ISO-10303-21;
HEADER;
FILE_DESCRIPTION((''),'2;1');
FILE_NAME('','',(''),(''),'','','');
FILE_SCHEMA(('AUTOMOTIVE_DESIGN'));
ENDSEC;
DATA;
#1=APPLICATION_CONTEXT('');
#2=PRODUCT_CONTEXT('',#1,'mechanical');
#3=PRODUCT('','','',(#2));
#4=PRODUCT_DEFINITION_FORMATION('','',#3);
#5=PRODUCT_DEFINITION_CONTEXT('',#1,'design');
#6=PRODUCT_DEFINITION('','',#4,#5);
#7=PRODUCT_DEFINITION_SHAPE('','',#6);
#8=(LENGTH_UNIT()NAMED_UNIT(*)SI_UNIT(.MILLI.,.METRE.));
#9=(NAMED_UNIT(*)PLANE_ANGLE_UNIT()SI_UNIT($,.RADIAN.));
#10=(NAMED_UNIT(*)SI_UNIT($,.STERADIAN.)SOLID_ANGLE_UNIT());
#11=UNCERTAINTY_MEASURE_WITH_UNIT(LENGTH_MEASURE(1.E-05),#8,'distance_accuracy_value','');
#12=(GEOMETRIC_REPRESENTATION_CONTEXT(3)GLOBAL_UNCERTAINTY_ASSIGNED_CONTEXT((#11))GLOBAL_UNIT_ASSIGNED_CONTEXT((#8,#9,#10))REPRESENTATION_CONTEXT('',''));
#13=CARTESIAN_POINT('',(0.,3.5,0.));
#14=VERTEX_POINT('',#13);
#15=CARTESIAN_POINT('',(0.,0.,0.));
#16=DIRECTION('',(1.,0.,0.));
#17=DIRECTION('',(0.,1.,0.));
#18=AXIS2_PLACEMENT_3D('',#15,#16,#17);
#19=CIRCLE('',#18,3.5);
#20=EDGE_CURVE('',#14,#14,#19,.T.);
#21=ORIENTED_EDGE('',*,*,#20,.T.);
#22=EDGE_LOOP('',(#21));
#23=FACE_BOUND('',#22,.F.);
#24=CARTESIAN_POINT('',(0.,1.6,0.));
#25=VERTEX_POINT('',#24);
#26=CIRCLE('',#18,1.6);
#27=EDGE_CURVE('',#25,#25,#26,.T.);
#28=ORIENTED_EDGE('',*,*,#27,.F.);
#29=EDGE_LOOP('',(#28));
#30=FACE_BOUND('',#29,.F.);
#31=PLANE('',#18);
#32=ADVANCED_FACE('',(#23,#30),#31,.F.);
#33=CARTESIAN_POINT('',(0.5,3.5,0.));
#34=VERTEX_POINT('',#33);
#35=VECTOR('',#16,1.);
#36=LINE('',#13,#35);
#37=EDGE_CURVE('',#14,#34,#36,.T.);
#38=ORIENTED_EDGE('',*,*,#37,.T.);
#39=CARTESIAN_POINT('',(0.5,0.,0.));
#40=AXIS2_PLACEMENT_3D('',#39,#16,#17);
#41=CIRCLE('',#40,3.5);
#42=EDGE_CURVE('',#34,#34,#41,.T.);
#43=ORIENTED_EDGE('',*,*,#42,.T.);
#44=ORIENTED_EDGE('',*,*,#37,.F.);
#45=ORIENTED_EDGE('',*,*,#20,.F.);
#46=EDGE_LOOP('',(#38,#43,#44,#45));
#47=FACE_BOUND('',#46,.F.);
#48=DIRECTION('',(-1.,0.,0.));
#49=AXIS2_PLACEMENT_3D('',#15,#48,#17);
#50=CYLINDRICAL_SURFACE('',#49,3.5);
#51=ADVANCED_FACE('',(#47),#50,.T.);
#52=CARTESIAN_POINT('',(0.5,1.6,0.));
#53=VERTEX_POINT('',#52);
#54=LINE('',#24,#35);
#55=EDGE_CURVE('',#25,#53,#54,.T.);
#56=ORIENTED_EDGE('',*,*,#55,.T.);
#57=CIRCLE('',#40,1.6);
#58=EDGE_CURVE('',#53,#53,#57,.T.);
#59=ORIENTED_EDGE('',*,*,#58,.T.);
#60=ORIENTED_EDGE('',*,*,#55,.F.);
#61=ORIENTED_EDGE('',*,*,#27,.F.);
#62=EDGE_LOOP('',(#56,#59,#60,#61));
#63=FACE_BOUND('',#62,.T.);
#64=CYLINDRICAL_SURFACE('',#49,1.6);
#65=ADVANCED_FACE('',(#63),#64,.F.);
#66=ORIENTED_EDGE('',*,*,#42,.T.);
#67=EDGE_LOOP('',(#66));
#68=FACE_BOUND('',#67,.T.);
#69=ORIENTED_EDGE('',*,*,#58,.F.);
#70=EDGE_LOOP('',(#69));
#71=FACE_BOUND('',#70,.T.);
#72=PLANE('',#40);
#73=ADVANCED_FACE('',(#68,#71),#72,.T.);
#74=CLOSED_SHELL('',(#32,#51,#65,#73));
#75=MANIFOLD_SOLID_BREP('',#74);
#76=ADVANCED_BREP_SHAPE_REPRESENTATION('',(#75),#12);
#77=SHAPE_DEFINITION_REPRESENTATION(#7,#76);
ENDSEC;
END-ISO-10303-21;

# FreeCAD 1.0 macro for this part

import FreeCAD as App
import Part
import Sketcher

V = App.Vector

doc = App.newDocument("Part")
body = doc.addObject("PartDesign::Body", "Body")

# Sketch on YZ plane
sketch1 = body.newObject("Sketcher::SketchObject", "Sketch")
sketch1.AttachmentSupport = (doc.getObject("YZ_Plane"), [""])
sketch1.MapMode = "FlatFace"
sketch1.addGeometry(Part.Circle(V(0, 0, 0), V(0, 0, 1), 3.5), False)
sketch1.addGeometry(Part.Circle(V(0, 0, 0), V(0, 0, 1), 1.6), False)
sketch1.addConstraint(Sketcher.Constraint("Coincident", 0, 3, -1, 1))
sketch1.addConstraint(Sketcher.Constraint("Coincident", 1, 3, -1, 1))
sketch1.addConstraint(Sketcher.Constraint("Diameter", 0, 7.0))
sketch1.addConstraint(Sketcher.Constraint("Diameter", 1, 3.2))
pad1 = body.newObject("PartDesign::Pad", "Pad")
pad1.Profile = sketch1
pad1.Length = 0.5

doc.recompute()
